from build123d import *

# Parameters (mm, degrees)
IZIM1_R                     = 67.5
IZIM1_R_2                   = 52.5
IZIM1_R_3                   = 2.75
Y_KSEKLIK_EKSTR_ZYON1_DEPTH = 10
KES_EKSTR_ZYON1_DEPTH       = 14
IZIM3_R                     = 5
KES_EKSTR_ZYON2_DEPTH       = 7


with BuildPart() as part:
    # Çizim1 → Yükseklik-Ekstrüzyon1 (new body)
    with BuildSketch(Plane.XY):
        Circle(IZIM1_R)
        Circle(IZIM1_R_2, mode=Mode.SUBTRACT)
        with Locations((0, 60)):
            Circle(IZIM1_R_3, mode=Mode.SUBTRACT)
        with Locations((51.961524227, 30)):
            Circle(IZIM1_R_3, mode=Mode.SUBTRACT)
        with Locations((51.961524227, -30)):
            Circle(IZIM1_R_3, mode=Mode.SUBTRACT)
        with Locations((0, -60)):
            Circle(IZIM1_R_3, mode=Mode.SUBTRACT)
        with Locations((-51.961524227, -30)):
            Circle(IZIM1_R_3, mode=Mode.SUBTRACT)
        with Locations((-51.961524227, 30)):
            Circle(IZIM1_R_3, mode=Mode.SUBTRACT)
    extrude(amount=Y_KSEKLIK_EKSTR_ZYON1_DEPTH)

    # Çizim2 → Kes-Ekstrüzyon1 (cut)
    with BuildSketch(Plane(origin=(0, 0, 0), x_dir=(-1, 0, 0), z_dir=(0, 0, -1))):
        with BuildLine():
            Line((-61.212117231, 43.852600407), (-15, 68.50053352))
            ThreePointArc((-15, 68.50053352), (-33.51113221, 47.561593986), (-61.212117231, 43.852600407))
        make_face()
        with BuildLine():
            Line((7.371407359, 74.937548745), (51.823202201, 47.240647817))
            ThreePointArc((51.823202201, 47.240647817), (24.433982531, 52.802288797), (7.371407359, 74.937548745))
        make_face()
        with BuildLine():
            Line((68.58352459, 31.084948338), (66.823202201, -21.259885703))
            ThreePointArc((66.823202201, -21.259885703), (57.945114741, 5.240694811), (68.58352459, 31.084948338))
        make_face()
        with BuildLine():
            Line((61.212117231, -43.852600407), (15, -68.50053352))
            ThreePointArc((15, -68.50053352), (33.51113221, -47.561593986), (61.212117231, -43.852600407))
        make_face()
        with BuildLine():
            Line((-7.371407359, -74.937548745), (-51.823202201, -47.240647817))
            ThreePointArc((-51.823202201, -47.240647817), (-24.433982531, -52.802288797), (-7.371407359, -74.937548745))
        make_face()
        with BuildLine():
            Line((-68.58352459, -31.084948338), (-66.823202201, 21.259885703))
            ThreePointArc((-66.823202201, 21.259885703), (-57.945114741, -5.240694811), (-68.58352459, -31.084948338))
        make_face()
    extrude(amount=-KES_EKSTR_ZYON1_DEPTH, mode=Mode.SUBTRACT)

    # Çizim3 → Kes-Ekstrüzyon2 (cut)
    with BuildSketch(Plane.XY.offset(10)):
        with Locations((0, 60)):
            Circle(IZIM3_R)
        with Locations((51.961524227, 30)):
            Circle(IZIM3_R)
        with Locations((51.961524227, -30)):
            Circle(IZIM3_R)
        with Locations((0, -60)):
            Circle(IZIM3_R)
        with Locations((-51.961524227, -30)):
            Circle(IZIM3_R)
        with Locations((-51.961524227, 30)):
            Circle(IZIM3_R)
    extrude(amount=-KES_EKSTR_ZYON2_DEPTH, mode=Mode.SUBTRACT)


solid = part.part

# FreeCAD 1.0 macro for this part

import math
import FreeCAD as App
import Part
import Sketcher
Q = App.Units.Quantity

doc = App.newDocument("Part")
body = doc.addObject("PartDesign::Body", "Body")

sketch1 = body.newObject("Sketcher::SketchObject", "Sketch")
sketch1.AttachmentSupport = (doc.getObject("XY_Plane"), [""])
sketch1.MapMode = "FlatFace"
sketch1.addGeometry([
    Part.Circle(App.Vector(0, 0, 0), App.Vector(0, 0, 1), 67.5),
    Part.Circle(App.Vector(-52, -30, 0), App.Vector(0, 0, 1), 2.8),
    Part.Circle(App.Vector(0, -60, 0), App.Vector(0, 0, 1), 2.8),
    Part.Circle(App.Vector(52, -30, 0), App.Vector(0, 0, 1), 2.8),
    Part.Circle(App.Vector(-52, 30, 0), App.Vector(0, 0, 1), 2.8),
    Part.Circle(App.Vector(0, 0, 0), App.Vector(0, 0, 1), 52.5),
    Part.Circle(App.Vector(52, 30, 0), App.Vector(0, 0, 1), 2.8),
    Part.Circle(App.Vector(0, 60, 0), App.Vector(0, 0, 1), 2.8),
], False)
sketch1.addConstraint([
    Sketcher.Constraint("Coincident", 0, 3, -1, 1),
    Sketcher.Constraint("Coincident", 5, 3, -1, 1),
    Sketcher.Constraint("Equal", 1, 2),
    Sketcher.Constraint("Equal", 2, 3),
    Sketcher.Constraint("Equal", 3, 4),
    Sketcher.Constraint("Equal", 4, 6),
    Sketcher.Constraint("Equal", 6, 7),
    Sketcher.Constraint("Symmetric", 3, 3, 4, 3, -1, 1),
    Sketcher.Constraint("Symmetric", 1, 3, 6, 3, -1, 1),
    Sketcher.Constraint("Symmetric", 2, 3, 7, 3, -1, 1),
    Sketcher.Constraint("Symmetric", 1, 3, 3, 3, -2),
    Sketcher.Constraint("PointOnObject", 2, 3, -2),
    Sketcher.Constraint("Diameter", 0, Q("135 mm")),
    Sketcher.Constraint("Diameter", 5, Q("105 mm")),
    Sketcher.Constraint("Diameter", 1, Q("5.5 mm")),
    Sketcher.Constraint("DistanceY", 1, 3, -1, 1, Q("30 mm")),
    Sketcher.Constraint("DistanceY", 2, 3, -1, 1, Q("60 mm")),
    Sketcher.Constraint("DistanceX", 1, 3, 3, 3, Q("103.923048 mm")),
])
pad1 = body.newObject("PartDesign::Pad", "Pad")
pad1.Profile = sketch1
pad1.Length = 10

sketch2 = body.newObject("Sketcher::SketchObject", "Sketch001")
sketch2.AttachmentSupport = (doc.getObject("XY_Plane"), [""])
sketch2.MapMode = "FlatFace"
sketch2.addGeometry([
    Part.LineSegment(App.Vector(15, 69, 0), App.Vector(61, 44, 0)),
    Part.ArcOfCircle(Part.Circle(App.Vector(52, 83, 0), App.Vector(0, 0, 1), 40), math.radians(-159), math.radians(-77)),
    Part.LineSegment(App.Vector(-52, 47, 0), App.Vector(-7, 75, 0)),
    Part.ArcOfCircle(Part.Circle(App.Vector(-46, 87, 0), App.Vector(0, 0, 1), 40), math.radians(-99), math.radians(-17)),
    Part.LineSegment(App.Vector(-67, -21, 0), App.Vector(-69, 31, 0)),
    Part.ArcOfCircle(Part.Circle(App.Vector(-98, 4, 0), App.Vector(0, 0, 1), 40), math.radians(-39), math.radians(43)),
    Part.LineSegment(App.Vector(-15, -69, 0), App.Vector(-61, -44, 0)),
    Part.ArcOfCircle(Part.Circle(App.Vector(-52, -83, 0), App.Vector(0, 0, 1), 40), math.radians(21), math.radians(103)),
    Part.LineSegment(App.Vector(52, -47, 0), App.Vector(7, -75, 0)),
    Part.ArcOfCircle(Part.Circle(App.Vector(46, -87, 0), App.Vector(0, 0, 1), 40), math.radians(81), math.radians(163)),
    Part.LineSegment(App.Vector(67, 21, 0), App.Vector(69, -31, 0)),
    Part.ArcOfCircle(Part.Circle(App.Vector(98, -4, 0), App.Vector(0, 0, 1), 40), math.radians(141), math.radians(223)),
], False)
sketch2.addConstraint([
    Sketcher.Constraint("Coincident", 0, 1, 1, 1),
    Sketcher.Constraint("Coincident", 1, 2, 0, 2),
    Sketcher.Constraint("Coincident", 2, 1, 3, 1),
    Sketcher.Constraint("Coincident", 3, 2, 2, 2),
    Sketcher.Constraint("Coincident", 4, 1, 5, 1),
    Sketcher.Constraint("Coincident", 5, 2, 4, 2),
    Sketcher.Constraint("Coincident", 6, 1, 7, 1),
    Sketcher.Constraint("Coincident", 7, 2, 6, 2),
    Sketcher.Constraint("Coincident", 8, 1, 9, 1),
    Sketcher.Constraint("Coincident", 9, 2, 8, 2),
    Sketcher.Constraint("Coincident", 10, 1, 11, 1),
    Sketcher.Constraint("Coincident", 11, 2, 10, 2),
    Sketcher.Constraint("Equal", 1, 3),
    Sketcher.Constraint("Equal", 3, 5),
    Sketcher.Constraint("Equal", 5, 7),
    Sketcher.Constraint("Equal", 7, 9),
    Sketcher.Constraint("Equal", 9, 11),
    Sketcher.Constraint("Symmetric", 1, 3, 7, 3, -1, 1),
    Sketcher.Constraint("Symmetric", 3, 3, 9, 3, -1, 1),
    Sketcher.Constraint("Symmetric", 5, 3, 11, 3, -1, 1),
    Sketcher.Constraint("Parallel", 0, 6),
    Sketcher.Constraint("Parallel", 2, 8),
    Sketcher.Constraint("Parallel", 4, 10),
    Sketcher.Constraint("Equal", 0, 2),
    Sketcher.Constraint("Equal", 2, 4),
    Sketcher.Constraint("Equal", 4, 6),
    Sketcher.Constraint("Equal", 6, 8),
    Sketcher.Constraint("Equal", 8, 10),
    Sketcher.Constraint("Radius", 1, Q("40 mm")),
    Sketcher.Constraint("DistanceX", -1, 1, 0, 1, Q("15 mm")),
    Sketcher.Constraint("DistanceX", 4, 1, 2, 1, Q("15 mm")),
    Sketcher.Constraint("DistanceY", -1, 1, 1, 2, Q("43.8526 mm")),
    Sketcher.Constraint("DistanceX", 1, 2, 11, 3, Q("36.710398 mm")),
    Sketcher.Constraint("DistanceY", 2, 1, 3, 2, Q("27.696901 mm")),
    Sketcher.Constraint("DistanceY", 5, 2, 2, 1, Q("16.155699 mm")),
    Sketcher.Constraint("DistanceX", 3, 3, -1, 1, Q("45.586979 mm")),
    Sketcher.Constraint("DistanceY", -1, 1, 5, 3, Q("3.896281 mm")),
    Sketcher.Constraint("DistanceY", -1, 1, 3, 2, Q("74.937549 mm")),
    Sketcher.Constraint("DistanceY", 1, 3, 3, 3, Q("3.896281 mm")),
])
pocket1 = body.newObject("PartDesign::Pocket", "Pocket")
pocket1.Profile = sketch2
pocket1.Length = 14
pocket1.Reversed = True

sketch3 = body.newObject("Sketcher::SketchObject", "Sketch002")
sketch3.AttachmentSupport = (doc.getObject("XY_Plane"), [""])
sketch3.MapMode = "FlatFace"
sketch3.AttachmentOffset = App.Placement(App.Vector(0, 0, 10), App.Rotation())
sketch3.addGeometry([
    Part.Circle(App.Vector(0, 60, 0), App.Vector(0, 0, 1), 5),
    Part.Circle(App.Vector(52, 30, 0), App.Vector(0, 0, 1), 5),
    Part.Circle(App.Vector(52, -30, 0), App.Vector(0, 0, 1), 5),
    Part.Circle(App.Vector(0, -60, 0), App.Vector(0, 0, 1), 5),
    Part.Circle(App.Vector(-52, -30, 0), App.Vector(0, 0, 1), 5),
    Part.Circle(App.Vector(-52, 30, 0), App.Vector(0, 0, 1), 5),
], False)
sketch3.addConstraint([
    Sketcher.Constraint("Equal", 0, 1),
    Sketcher.Constraint("Equal", 1, 2),
    Sketcher.Constraint("Equal", 2, 3),
    Sketcher.Constraint("Equal", 3, 4),
    Sketcher.Constraint("Equal", 4, 5),
    Sketcher.Constraint("Symmetric", 0, 3, 3, 3, -1, 1),
    Sketcher.Constraint("Symmetric", 1, 3, 4, 3, -1, 1),
    Sketcher.Constraint("Symmetric", 2, 3, 5, 3, -1, 1),
    Sketcher.Constraint("Symmetric", 2, 3, 4, 3, -2),
    Sketcher.Constraint("PointOnObject", 0, 3, -2),
    Sketcher.Constraint("Diameter", 0, Q("10 mm")),
    Sketcher.Constraint("DistanceY", -1, 1, 0, 3, Q("60 mm")),
    Sketcher.Constraint("DistanceY", -1, 1, 1, 3, Q("30 mm")),
    Sketcher.Constraint("DistanceX", 4, 3, 2, 3, Q("103.923048 mm")),
])
pocket2 = body.newObject("PartDesign::Pocket", "Pocket001")
pocket2.Profile = sketch3
pocket2.Length = 7

doc.recompute()
